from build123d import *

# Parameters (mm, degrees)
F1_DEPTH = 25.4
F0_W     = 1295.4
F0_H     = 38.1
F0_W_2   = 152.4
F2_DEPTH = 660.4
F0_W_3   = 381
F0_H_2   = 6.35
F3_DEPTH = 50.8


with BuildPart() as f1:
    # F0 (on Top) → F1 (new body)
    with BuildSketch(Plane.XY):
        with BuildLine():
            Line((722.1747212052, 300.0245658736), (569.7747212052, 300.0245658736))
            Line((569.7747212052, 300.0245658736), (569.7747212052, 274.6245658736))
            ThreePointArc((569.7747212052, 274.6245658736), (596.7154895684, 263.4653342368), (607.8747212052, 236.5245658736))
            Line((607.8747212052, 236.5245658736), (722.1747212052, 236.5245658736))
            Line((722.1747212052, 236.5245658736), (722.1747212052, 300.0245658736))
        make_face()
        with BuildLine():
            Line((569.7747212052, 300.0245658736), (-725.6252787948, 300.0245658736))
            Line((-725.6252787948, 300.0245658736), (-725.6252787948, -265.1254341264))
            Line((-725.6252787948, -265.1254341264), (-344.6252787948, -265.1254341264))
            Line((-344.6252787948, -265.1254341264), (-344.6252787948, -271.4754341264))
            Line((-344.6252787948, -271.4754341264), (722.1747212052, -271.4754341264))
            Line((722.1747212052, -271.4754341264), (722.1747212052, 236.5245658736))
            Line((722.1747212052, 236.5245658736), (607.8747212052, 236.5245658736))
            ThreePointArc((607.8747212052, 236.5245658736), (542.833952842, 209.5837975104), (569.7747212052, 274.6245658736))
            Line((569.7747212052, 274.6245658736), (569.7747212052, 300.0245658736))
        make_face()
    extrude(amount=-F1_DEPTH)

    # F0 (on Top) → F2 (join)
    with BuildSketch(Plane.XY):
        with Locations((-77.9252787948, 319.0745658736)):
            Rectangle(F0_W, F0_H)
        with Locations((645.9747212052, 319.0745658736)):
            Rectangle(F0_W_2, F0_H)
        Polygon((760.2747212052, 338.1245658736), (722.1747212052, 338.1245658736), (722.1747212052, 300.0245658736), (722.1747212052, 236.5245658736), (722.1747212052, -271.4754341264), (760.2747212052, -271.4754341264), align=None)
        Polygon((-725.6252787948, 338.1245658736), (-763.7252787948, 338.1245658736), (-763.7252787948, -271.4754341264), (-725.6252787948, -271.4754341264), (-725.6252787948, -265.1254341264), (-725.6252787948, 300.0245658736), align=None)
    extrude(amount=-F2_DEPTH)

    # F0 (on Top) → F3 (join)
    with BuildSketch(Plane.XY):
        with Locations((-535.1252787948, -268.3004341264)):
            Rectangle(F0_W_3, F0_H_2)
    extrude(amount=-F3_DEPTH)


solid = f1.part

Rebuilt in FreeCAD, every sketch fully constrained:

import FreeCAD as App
import Part
import Sketcher
from FreeCAD import Vector
Q = App.Units.Quantity


def add_polygon(sketch, points):
    """Adds a closed chain of lines whose ends are joined by coincident constraints."""
    first, n = sketch.GeometryCount, len(points)
    for a, b in zip(points, points[1:] + points[:1]):
        sketch.addGeometry(Part.LineSegment(App.Vector(*a, 0), App.Vector(*b, 0)), False)
    for i in range(n):
        sketch.addConstraint(Sketcher.Constraint("Coincident", first + i, 2, first + (i + 1) % n, 1))

doc = App.newDocument("Part")
body = doc.addObject("PartDesign::Body", "Body")

# Sketch on XY plane
sketch1 = body.newObject("Sketcher::SketchObject", "Sketch")
sketch1.AttachmentSupport = (doc.getObject("XY_Plane"), [""])
sketch1.MapMode = "FlatFace"
add_polygon(sketch1, [(722.174721, 300.024566), (-725.625279, 300.024566), (-725.625279, -265.125434), (-344.625279, -265.125434), (-344.625279, -271.475434), (722.174721, -271.475434)])  # lines 0-5
sketch1.addGeometry(Part.Circle(Vector(569.774721, 236.524566, 0), Vector(0, 0, 1), 38.1), False)  # 6
sketch1.addConstraint(Sketcher.Constraint("Horizontal", 0))
sketch1.addConstraint(Sketcher.Constraint("Vertical", 1))
sketch1.addConstraint(Sketcher.Constraint("Horizontal", 2))
sketch1.addConstraint(Sketcher.Constraint("Vertical", 3))
sketch1.addConstraint(Sketcher.Constraint("Horizontal", 4))
sketch1.addConstraint(Sketcher.Constraint("Vertical", 5))
sketch1.addConstraint(Sketcher.Constraint("Diameter", 6, Q("3 in")))
sketch1.addConstraint(Sketcher.Constraint("DistanceX", 0, 2, 0, 1, Q("57 in")))
sketch1.addConstraint(Sketcher.Constraint("DistanceX", 2, 1, 2, 2, Q("15 in")))
sketch1.addConstraint(Sketcher.Constraint("DistanceY", 5, 1, 5, 2, Q("22.5 in")))
sketch1.addConstraint(Sketcher.Constraint("DistanceX", 0, 2, 6, 3, Q("51 in")))
sketch1.addConstraint(Sketcher.Constraint("DistanceY", 3, 2, 6, 3, Q("20 in")))
sketch1.addConstraint(Sketcher.Constraint("DistanceY", 1, 2, 1, 1, Q("22.25 in")))
sketch1.addConstraint(Sketcher.Constraint("DistanceX", -1, 1, 6, 3, Q("569.774721 mm")))
sketch1.addConstraint(Sketcher.Constraint("DistanceY", -1, 1, 6, 3, Q("236.524566 mm")))
pad1 = body.newObject("PartDesign::Pad", "Pad")
pad1.Profile = sketch1
pad1.Length = Q("1 in")
pad1.Reversed = True

# Sketch on XY plane
sketch2 = body.newObject("Sketcher::SketchObject", "Sketch001")
sketch2.AttachmentSupport = (doc.getObject("XY_Plane"), [""])
sketch2.MapMode = "FlatFace"
add_polygon(sketch2, [(-725.625279, 300.024566), (722.174721, 300.024566), (722.174721, -271.475434), (760.274721, -271.475434), (760.274721, 338.124566), (-763.725279, 338.124566), (-763.725279, -271.475434), (-725.625279, -271.475434)])  # lines 0-7
sketch2.addConstraint(Sketcher.Constraint("Horizontal", 0))
sketch2.addConstraint(Sketcher.Constraint("Vertical", 1))
sketch2.addConstraint(Sketcher.Constraint("Horizontal", 2))
sketch2.addConstraint(Sketcher.Constraint("Vertical", 3))
sketch2.addConstraint(Sketcher.Constraint("Horizontal", 4))
sketch2.addConstraint(Sketcher.Constraint("Vertical", 5))
sketch2.addConstraint(Sketcher.Constraint("Horizontal", 6))
sketch2.addConstraint(Sketcher.Constraint("Vertical", 7))
sketch2.addConstraint(Sketcher.Constraint("Horizontal", 2, 2, 5, 2))
sketch2.addConstraint(Sketcher.Constraint("Equal", 2, 6))
sketch2.addConstraint(Sketcher.Constraint("DistanceX", 0, 1, 0, 2, Q("57 in")))
sketch2.addConstraint(Sketcher.Constraint("DistanceX", 4, 2, 4, 1, Q("60 in")))
sketch2.addConstraint(Sketcher.Constraint("DistanceY", 3, 1, 3, 2, Q("24 in")))
sketch2.addConstraint(Sketcher.Constraint("DistanceY", 1, 2, 1, 1, Q("22.5 in")))
sketch2.addConstraint(Sketcher.Constraint("DistanceX", -1, 1, 0, 2, Q("722.174721 mm")))
sketch2.addConstraint(Sketcher.Constraint("DistanceY", -1, 1, 0, 2, Q("300.024566 mm")))
pad2 = body.newObject("PartDesign::Pad", "Pad001")
pad2.Profile = sketch2
pad2.Length = Q("26 in")
pad2.Reversed = True

# Sketch on XY plane
sketch3 = body.newObject("Sketcher::SketchObject", "Sketch002")
sketch3.AttachmentSupport = (doc.getObject("XY_Plane"), [""])
sketch3.MapMode = "FlatFace"
add_polygon(sketch3, [(-725.625279, -265.125434), (-725.625279, -271.475434), (-344.625279, -271.475434), (-344.625279, -265.125434)])  # lines 0-3
sketch3.addConstraint(Sketcher.Constraint("Vertical", 0))
sketch3.addConstraint(Sketcher.Constraint("Horizontal", 1))
sketch3.addConstraint(Sketcher.Constraint("Vertical", 2))
sketch3.addConstraint(Sketcher.Constraint("Horizontal", 3))
sketch3.addConstraint(Sketcher.Constraint("DistanceX", 1, 1, 1, 2, Q("15 in")))
sketch3.addConstraint(Sketcher.Constraint("DistanceY", 0, 2, 0, 1, Q("0.25 in")))
sketch3.addConstraint(Sketcher.Constraint("DistanceX", 0, 2, -1, 1, Q("725.625279 mm")))
sketch3.addConstraint(Sketcher.Constraint("DistanceY", 0, 2, -1, 1, Q("271.475434 mm")))
pad3 = body.newObject("PartDesign::Pad", "Pad002")
pad3.Profile = sketch3
pad3.Length = Q("2 in")
pad3.Reversed = True

doc.recompute()
